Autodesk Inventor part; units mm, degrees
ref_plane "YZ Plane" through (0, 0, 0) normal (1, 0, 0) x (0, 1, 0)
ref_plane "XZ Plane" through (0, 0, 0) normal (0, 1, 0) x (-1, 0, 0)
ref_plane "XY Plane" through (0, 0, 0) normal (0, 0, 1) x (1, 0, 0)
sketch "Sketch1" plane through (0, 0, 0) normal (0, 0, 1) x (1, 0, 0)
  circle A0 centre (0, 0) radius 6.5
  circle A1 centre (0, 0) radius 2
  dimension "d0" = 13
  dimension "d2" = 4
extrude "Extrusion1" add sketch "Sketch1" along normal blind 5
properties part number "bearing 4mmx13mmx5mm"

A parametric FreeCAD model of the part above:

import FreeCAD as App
import Part
import Sketcher
from FreeCAD import Vector
Q = App.Units.Quantity

doc = App.newDocument("Part")
body = doc.addObject("PartDesign::Body", "Body")

sketch1 = doc.addObject("Sketcher::SketchObject", "Sketch")
body.addObject(sketch1)
sketch1.AttachmentSupport = (doc.XY_Plane, [""])
sketch1.MapMode = "FlatFace"
sketch1.addGeometry(Part.Circle(Vector(0, 0, 0), Vector(0, 0, 1), 6.5), False)
sketch1.addGeometry(Part.Circle(Vector(0, 0, 0), Vector(0, 0, 1), 2), False)
sketch1.addConstraint(Sketcher.Constraint("Coincident", 0, 3, -1, 1))
sketch1.addConstraint(Sketcher.Constraint("Coincident", 1, 3, -1, 1))
sketch1.addConstraint(Sketcher.Constraint("Diameter", 0, Q("13 mm")))
sketch1.addConstraint(Sketcher.Constraint("Diameter", 1, Q("4 mm")))
pad1 = doc.addObject("PartDesign::Pad", "Pad")
body.addObject(pad1)
pad1.Profile = sketch1
pad1.Length = 5

doc.recompute()
